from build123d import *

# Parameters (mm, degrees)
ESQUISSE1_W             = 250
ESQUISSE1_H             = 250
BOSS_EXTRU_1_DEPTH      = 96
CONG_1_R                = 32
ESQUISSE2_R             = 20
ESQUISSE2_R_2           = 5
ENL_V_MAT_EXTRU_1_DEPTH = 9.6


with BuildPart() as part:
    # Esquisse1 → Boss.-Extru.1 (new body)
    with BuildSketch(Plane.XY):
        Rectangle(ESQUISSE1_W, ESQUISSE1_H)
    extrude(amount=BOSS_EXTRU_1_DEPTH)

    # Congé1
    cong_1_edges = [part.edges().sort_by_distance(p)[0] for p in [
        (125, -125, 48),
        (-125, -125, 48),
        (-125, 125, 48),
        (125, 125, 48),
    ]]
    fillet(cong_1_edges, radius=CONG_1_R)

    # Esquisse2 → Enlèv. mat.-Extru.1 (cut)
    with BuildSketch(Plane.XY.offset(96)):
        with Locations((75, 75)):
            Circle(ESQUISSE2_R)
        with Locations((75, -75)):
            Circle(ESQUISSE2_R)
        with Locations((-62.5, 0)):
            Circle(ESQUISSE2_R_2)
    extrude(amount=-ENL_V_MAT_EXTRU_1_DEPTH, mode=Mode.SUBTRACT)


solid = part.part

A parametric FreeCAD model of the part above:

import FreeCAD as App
import Part
import Sketcher

V = App.Vector


def edges_at(feature, points):
    """Names of the edges that pass closest to the given points."""
    edges = feature.Shape.Edges
    near = lambda p: min(range(len(edges)), key=lambda i: edges[i].distToShape(Part.Vertex(*p))[0])
    return sorted({f"Edge{near(p) + 1}" for p in points})


def add_polygon(sketch, points):
    """Adds a closed chain of lines whose ends are joined by coincident constraints."""
    first, n = sketch.GeometryCount, len(points)
    for a, b in zip(points, points[1:] + points[:1]):
        sketch.addGeometry(Part.LineSegment(App.Vector(*a, 0), App.Vector(*b, 0)), False)
    for i in range(n):
        sketch.addConstraint(Sketcher.Constraint("Coincident", first + i, 2, first + (i + 1) % n, 1))

doc = App.newDocument("Part")
params = doc.addObject("Spreadsheet::Sheet", "Params")
for row, (alias, value) in enumerate([
    ("sketch1_width", "250 mm"),
    ("pad1_length", "96 mm"),
    ("fillet_radius", "32 mm"),
    ("sketch2_diameter", "40 mm"),
    ("sketch2_diameter2", "10 mm"),
    ("pocket1_length", "9.6 mm"),
], start=1):
    params.set(f"A{row}", alias)
    params.set(f"B{row}", "=" + value)
    params.setAlias(f"B{row}", alias)

body = doc.addObject("PartDesign::Body", "Body")

sketch1 = body.newObject("Sketcher::SketchObject", "Sketch")
sketch1.AttachmentSupport = (doc.getObject("XY_Plane"), [""])
sketch1.MapMode = "FlatFace"
add_polygon(sketch1, [(-125, 125), (-125, -125), (125, -125), (125, 125)])
sketch1.addConstraint(Sketcher.Constraint("Vertical", 0))
sketch1.addConstraint(Sketcher.Constraint("Horizontal", 1))
sketch1.addConstraint(Sketcher.Constraint("Vertical", 2))
sketch1.addConstraint(Sketcher.Constraint("Horizontal", 3))
sketch1.addConstraint(Sketcher.Constraint("Symmetric", 0, 2, 2, 2, -1, 1))
sketch1.addConstraint(Sketcher.Constraint("Equal", 3, 0))
sketch1.addConstraint(Sketcher.Constraint("DistanceX", 1, 1, 1, 2, 250.0))
sketch1.setExpression("Constraints[10]", "Params.sketch1_width")
pad1 = body.newObject("PartDesign::Pad", "Pad")
pad1.Profile = sketch1
pad1.setExpression("Length", "Params.pad1_length")
doc.recompute()

fillet = body.newObject("PartDesign::Fillet", "Fillet")
fillet.Base = (pad1, edges_at(pad1, [
    (125, -125, 48),
    (-125, -125, 48),
    (-125, 125, 48),
    (125, 125, 48),
]))
fillet.setExpression("Radius", "Params.fillet_radius")

sketch2 = body.newObject("Sketcher::SketchObject", "Sketch001")
sketch2.AttachmentSupport = (doc.getObject("XY_Plane"), [""])
sketch2.MapMode = "FlatFace"
sketch2.AttachmentOffset = App.Placement(V(0, 0, 96), App.Rotation())
sketch2.addGeometry(Part.Circle(V(75, 75, 0), V(0, 0, 1), 20), False)
sketch2.addGeometry(Part.Circle(V(75, -75, 0), V(0, 0, 1), 20), False)
sketch2.addGeometry(Part.Circle(V(-62, 0, 0), V(0, 0, 1), 5), False)
sketch2.addConstraint(Sketcher.Constraint("Equal", 0, 1))
sketch2.addConstraint(Sketcher.Constraint("Symmetric", 0, 3, 1, 3, -1))
sketch2.addConstraint(Sketcher.Constraint("PointOnObject", 2, 3, -1))
sketch2.addConstraint(Sketcher.Constraint("Diameter", 0, 40.0))
sketch2.addConstraint(Sketcher.Constraint("Diameter", 2, 10.0))
sketch2.addConstraint(Sketcher.Constraint("DistanceX", -1, 1, 0, 3, 75.0))
sketch2.addConstraint(Sketcher.Constraint("DistanceY", -1, 1, 0, 3, 75.0))
sketch2.addConstraint(Sketcher.Constraint("DistanceX", 2, 3, -1, 1, 62.5))
sketch2.setExpression("Constraints[3]", "Params.sketch2_diameter")
sketch2.setExpression("Constraints[4]", "Params.sketch2_diameter2")
pocket1 = body.newObject("PartDesign::Pocket", "Pocket")
pocket1.Profile = sketch2
pocket1.setExpression("Length", "Params.pocket1_length")

doc.recompute()
